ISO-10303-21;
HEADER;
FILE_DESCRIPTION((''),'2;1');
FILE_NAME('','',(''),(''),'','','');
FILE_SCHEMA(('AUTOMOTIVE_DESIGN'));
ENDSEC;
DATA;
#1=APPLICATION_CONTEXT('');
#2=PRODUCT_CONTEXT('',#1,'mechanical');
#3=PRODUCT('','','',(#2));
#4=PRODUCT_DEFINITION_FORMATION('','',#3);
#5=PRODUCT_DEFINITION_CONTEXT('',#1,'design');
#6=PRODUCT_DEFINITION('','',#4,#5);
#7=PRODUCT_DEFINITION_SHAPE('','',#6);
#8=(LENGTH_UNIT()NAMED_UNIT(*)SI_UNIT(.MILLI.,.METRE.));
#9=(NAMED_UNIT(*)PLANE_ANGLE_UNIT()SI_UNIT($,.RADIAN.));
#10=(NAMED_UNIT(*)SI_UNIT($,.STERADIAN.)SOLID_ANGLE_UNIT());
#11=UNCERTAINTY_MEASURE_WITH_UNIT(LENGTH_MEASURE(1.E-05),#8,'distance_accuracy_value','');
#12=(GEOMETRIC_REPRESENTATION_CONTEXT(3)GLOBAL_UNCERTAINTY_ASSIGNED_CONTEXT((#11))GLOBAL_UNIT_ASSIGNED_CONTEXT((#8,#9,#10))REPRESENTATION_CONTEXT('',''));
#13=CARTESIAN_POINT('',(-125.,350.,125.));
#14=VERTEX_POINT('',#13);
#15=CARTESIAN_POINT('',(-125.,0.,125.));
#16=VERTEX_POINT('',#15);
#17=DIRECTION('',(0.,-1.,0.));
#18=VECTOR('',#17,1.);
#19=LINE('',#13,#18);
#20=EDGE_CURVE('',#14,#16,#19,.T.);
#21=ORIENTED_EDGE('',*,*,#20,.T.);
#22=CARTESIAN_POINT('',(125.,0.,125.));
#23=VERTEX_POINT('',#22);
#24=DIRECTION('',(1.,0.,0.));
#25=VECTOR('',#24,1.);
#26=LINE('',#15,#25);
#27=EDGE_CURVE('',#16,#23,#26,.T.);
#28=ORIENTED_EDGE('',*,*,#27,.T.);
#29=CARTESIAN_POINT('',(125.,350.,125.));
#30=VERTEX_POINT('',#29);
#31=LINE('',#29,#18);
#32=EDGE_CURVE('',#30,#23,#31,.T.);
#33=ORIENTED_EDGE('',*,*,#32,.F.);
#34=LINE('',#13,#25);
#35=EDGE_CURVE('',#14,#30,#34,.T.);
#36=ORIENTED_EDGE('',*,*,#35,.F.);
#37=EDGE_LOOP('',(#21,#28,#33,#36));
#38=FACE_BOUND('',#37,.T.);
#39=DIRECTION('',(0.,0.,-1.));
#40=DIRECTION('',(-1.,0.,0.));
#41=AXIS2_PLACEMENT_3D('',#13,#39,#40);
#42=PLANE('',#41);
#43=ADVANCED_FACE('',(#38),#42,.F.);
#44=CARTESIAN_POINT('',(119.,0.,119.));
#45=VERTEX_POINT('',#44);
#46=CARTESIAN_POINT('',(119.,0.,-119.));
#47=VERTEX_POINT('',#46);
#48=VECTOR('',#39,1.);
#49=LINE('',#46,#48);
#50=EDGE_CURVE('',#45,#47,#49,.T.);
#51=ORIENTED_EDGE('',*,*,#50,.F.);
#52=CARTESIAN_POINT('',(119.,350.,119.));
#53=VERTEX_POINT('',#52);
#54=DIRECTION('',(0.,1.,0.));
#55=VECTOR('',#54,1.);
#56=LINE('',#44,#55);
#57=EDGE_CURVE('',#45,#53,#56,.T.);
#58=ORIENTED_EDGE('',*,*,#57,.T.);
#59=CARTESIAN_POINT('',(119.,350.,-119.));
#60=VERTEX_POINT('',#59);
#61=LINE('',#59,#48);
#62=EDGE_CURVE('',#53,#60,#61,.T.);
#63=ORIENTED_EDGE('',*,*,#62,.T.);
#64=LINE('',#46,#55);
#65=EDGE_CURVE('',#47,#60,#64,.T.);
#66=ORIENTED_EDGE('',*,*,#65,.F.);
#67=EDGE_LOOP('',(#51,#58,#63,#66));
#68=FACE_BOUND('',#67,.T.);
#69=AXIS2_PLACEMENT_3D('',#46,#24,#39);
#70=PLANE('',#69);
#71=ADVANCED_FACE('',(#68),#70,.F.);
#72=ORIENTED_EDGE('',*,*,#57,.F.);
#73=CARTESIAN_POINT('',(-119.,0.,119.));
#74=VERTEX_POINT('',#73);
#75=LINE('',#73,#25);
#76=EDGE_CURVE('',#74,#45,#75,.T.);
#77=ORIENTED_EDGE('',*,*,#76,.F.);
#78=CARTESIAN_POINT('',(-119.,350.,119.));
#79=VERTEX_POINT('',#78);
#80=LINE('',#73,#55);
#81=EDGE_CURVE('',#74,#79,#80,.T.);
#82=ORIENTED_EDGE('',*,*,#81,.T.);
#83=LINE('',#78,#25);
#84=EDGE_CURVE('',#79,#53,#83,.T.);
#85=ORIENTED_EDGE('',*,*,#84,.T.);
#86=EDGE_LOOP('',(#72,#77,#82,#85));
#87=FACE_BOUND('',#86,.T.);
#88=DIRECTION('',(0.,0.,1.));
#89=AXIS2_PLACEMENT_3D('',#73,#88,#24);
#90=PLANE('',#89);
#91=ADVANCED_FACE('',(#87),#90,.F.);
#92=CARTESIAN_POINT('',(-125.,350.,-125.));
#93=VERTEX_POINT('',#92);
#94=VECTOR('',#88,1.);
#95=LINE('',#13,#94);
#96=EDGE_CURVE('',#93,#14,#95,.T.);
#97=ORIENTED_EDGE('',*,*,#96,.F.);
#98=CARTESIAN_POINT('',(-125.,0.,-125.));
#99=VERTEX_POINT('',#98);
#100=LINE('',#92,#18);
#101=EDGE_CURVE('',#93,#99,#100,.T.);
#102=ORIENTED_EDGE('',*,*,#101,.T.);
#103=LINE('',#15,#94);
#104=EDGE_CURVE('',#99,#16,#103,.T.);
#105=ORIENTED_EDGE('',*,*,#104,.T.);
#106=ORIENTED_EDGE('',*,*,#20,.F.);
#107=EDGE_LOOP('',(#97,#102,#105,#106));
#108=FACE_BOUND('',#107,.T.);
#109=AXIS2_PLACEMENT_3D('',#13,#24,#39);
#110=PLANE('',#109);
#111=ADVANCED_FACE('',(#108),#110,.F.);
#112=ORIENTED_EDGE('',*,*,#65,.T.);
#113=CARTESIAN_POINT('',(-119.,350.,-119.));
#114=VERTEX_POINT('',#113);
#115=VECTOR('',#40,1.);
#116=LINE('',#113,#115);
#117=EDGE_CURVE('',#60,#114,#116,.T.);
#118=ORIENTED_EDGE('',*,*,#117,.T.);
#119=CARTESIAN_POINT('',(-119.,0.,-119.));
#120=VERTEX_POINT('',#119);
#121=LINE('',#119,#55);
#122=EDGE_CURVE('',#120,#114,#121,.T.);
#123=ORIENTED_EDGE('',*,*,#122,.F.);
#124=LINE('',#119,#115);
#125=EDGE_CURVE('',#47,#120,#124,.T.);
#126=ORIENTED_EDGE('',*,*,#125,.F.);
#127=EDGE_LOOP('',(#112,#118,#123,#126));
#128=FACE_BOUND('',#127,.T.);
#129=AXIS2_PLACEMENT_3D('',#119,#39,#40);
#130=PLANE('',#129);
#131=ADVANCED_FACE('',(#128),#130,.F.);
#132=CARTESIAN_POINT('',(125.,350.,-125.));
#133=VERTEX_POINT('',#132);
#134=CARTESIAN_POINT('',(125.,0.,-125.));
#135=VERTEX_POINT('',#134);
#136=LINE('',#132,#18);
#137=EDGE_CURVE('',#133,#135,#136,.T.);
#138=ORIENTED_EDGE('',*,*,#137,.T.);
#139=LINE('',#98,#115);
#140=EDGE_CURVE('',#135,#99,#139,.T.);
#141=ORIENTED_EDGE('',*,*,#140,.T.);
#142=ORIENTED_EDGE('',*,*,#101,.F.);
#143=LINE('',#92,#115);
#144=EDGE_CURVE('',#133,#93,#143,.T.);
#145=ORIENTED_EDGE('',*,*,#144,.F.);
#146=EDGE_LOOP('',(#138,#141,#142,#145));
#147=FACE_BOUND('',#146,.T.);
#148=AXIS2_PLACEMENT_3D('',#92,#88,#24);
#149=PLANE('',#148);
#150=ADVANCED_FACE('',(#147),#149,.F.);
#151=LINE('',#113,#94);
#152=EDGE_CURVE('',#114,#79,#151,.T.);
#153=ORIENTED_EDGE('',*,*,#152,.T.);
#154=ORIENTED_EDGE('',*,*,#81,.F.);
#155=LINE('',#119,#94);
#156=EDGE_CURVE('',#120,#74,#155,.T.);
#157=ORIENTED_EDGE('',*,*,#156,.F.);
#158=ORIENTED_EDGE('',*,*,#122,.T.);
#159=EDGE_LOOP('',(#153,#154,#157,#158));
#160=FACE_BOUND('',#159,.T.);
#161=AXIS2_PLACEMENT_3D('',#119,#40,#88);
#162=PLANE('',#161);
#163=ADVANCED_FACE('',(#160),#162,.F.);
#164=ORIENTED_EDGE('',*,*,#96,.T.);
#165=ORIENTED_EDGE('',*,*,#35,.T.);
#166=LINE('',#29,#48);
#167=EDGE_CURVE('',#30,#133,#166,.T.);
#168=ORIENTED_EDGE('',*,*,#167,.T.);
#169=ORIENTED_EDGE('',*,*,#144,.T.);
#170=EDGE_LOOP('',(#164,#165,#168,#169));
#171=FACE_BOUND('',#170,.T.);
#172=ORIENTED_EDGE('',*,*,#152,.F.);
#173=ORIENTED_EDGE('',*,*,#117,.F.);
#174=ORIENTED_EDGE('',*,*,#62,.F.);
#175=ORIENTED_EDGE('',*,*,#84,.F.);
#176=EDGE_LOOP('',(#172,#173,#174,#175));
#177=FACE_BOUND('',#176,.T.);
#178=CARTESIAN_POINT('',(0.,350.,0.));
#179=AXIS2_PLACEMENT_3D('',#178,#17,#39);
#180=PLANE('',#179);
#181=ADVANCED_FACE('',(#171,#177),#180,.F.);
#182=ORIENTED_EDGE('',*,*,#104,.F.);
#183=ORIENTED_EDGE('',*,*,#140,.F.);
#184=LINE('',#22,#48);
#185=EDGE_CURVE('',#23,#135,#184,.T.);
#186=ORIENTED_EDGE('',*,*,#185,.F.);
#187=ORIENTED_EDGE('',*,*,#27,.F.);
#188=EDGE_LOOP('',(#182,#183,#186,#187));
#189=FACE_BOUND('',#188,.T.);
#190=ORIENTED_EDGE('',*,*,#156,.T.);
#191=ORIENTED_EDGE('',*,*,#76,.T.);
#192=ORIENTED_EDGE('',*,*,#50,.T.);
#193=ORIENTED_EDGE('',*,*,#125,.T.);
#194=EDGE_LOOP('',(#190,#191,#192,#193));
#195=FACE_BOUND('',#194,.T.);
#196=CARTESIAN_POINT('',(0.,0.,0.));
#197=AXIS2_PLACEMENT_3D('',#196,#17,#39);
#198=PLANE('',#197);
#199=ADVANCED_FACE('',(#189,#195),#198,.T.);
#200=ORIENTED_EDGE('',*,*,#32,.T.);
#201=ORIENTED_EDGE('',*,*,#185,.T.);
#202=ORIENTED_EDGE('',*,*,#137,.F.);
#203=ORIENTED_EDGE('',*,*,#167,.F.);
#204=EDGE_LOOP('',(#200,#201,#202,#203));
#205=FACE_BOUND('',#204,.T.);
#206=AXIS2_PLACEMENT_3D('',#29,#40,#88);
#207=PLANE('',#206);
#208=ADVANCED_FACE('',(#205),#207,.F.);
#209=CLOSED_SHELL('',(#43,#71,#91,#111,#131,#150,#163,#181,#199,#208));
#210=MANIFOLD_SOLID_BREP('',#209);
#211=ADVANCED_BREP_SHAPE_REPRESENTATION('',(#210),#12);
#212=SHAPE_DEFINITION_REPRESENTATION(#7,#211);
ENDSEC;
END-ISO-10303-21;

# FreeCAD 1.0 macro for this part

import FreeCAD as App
import Part
import Sketcher
from FreeCAD import Vector


def add_polygon(sketch, points):
    """Adds a closed chain of lines whose ends are joined by coincident constraints."""
    first, n = sketch.GeometryCount, len(points)
    for a, b in zip(points, points[1:] + points[:1]):
        sketch.addGeometry(Part.LineSegment(App.Vector(*a, 0), App.Vector(*b, 0)), False)
    for i in range(n):
        sketch.addConstraint(Sketcher.Constraint("Coincident", first + i, 2, first + (i + 1) % n, 1))

doc = App.newDocument("Part")
body = doc.addObject("PartDesign::Body", "Body")

sketch1 = body.newObject("Sketcher::SketchObject", "Sketch")
sketch1.AttachmentSupport = (doc.getObject("XZ_Plane"), [""])
sketch1.MapMode = "FlatFace"
add_polygon(sketch1, [(-125, -125), (-125, 125), (125, 125), (125, -125)])
sketch1.addConstraint([
    Sketcher.Constraint("Vertical", 0),
    Sketcher.Constraint("Horizontal", 1),
    Sketcher.Constraint("Vertical", 2),
    Sketcher.Constraint("Horizontal", 3),
    Sketcher.Constraint("Symmetric", 0, 2, 2, 2, -1, 1),
    Sketcher.Constraint("Equal", 3, 0),
    Sketcher.Constraint("DistanceX", 1, 1, 1, 2, 250.0),
])
pad1 = body.newObject("PartDesign::Pad", "Pad")
pad1.Profile = sketch1
pad1.Length = 350
pad1.Reversed = True

sketch2 = body.newObject("Sketcher::SketchObject", "Sketch001")
sketch2.AttachmentSupport = (doc.getObject("XZ_Plane"), [""])
sketch2.MapMode = "FlatFace"
sketch2.AttachmentOffset = App.Placement(Vector(0, 0, -350), App.Rotation())
add_polygon(sketch2, [(-119, -119), (-119, 119), (119, 119), (119, -119)])
sketch2.addConstraint([
    Sketcher.Constraint("Vertical", 0),
    Sketcher.Constraint("Horizontal", 1),
    Sketcher.Constraint("Vertical", 2),
    Sketcher.Constraint("Horizontal", 3),
    Sketcher.Constraint("Symmetric", 0, 2, 2, 2, -1, 1),
    Sketcher.Constraint("Equal", 3, 0),
    Sketcher.Constraint("DistanceX", 1, 1, 1, 2, 238.0),
])
pocket1 = body.newObject("PartDesign::Pocket", "Pocket")
pocket1.Profile = sketch2
pocket1.Type = "ThroughAll"
pocket1.Reversed = True

doc.recompute()
